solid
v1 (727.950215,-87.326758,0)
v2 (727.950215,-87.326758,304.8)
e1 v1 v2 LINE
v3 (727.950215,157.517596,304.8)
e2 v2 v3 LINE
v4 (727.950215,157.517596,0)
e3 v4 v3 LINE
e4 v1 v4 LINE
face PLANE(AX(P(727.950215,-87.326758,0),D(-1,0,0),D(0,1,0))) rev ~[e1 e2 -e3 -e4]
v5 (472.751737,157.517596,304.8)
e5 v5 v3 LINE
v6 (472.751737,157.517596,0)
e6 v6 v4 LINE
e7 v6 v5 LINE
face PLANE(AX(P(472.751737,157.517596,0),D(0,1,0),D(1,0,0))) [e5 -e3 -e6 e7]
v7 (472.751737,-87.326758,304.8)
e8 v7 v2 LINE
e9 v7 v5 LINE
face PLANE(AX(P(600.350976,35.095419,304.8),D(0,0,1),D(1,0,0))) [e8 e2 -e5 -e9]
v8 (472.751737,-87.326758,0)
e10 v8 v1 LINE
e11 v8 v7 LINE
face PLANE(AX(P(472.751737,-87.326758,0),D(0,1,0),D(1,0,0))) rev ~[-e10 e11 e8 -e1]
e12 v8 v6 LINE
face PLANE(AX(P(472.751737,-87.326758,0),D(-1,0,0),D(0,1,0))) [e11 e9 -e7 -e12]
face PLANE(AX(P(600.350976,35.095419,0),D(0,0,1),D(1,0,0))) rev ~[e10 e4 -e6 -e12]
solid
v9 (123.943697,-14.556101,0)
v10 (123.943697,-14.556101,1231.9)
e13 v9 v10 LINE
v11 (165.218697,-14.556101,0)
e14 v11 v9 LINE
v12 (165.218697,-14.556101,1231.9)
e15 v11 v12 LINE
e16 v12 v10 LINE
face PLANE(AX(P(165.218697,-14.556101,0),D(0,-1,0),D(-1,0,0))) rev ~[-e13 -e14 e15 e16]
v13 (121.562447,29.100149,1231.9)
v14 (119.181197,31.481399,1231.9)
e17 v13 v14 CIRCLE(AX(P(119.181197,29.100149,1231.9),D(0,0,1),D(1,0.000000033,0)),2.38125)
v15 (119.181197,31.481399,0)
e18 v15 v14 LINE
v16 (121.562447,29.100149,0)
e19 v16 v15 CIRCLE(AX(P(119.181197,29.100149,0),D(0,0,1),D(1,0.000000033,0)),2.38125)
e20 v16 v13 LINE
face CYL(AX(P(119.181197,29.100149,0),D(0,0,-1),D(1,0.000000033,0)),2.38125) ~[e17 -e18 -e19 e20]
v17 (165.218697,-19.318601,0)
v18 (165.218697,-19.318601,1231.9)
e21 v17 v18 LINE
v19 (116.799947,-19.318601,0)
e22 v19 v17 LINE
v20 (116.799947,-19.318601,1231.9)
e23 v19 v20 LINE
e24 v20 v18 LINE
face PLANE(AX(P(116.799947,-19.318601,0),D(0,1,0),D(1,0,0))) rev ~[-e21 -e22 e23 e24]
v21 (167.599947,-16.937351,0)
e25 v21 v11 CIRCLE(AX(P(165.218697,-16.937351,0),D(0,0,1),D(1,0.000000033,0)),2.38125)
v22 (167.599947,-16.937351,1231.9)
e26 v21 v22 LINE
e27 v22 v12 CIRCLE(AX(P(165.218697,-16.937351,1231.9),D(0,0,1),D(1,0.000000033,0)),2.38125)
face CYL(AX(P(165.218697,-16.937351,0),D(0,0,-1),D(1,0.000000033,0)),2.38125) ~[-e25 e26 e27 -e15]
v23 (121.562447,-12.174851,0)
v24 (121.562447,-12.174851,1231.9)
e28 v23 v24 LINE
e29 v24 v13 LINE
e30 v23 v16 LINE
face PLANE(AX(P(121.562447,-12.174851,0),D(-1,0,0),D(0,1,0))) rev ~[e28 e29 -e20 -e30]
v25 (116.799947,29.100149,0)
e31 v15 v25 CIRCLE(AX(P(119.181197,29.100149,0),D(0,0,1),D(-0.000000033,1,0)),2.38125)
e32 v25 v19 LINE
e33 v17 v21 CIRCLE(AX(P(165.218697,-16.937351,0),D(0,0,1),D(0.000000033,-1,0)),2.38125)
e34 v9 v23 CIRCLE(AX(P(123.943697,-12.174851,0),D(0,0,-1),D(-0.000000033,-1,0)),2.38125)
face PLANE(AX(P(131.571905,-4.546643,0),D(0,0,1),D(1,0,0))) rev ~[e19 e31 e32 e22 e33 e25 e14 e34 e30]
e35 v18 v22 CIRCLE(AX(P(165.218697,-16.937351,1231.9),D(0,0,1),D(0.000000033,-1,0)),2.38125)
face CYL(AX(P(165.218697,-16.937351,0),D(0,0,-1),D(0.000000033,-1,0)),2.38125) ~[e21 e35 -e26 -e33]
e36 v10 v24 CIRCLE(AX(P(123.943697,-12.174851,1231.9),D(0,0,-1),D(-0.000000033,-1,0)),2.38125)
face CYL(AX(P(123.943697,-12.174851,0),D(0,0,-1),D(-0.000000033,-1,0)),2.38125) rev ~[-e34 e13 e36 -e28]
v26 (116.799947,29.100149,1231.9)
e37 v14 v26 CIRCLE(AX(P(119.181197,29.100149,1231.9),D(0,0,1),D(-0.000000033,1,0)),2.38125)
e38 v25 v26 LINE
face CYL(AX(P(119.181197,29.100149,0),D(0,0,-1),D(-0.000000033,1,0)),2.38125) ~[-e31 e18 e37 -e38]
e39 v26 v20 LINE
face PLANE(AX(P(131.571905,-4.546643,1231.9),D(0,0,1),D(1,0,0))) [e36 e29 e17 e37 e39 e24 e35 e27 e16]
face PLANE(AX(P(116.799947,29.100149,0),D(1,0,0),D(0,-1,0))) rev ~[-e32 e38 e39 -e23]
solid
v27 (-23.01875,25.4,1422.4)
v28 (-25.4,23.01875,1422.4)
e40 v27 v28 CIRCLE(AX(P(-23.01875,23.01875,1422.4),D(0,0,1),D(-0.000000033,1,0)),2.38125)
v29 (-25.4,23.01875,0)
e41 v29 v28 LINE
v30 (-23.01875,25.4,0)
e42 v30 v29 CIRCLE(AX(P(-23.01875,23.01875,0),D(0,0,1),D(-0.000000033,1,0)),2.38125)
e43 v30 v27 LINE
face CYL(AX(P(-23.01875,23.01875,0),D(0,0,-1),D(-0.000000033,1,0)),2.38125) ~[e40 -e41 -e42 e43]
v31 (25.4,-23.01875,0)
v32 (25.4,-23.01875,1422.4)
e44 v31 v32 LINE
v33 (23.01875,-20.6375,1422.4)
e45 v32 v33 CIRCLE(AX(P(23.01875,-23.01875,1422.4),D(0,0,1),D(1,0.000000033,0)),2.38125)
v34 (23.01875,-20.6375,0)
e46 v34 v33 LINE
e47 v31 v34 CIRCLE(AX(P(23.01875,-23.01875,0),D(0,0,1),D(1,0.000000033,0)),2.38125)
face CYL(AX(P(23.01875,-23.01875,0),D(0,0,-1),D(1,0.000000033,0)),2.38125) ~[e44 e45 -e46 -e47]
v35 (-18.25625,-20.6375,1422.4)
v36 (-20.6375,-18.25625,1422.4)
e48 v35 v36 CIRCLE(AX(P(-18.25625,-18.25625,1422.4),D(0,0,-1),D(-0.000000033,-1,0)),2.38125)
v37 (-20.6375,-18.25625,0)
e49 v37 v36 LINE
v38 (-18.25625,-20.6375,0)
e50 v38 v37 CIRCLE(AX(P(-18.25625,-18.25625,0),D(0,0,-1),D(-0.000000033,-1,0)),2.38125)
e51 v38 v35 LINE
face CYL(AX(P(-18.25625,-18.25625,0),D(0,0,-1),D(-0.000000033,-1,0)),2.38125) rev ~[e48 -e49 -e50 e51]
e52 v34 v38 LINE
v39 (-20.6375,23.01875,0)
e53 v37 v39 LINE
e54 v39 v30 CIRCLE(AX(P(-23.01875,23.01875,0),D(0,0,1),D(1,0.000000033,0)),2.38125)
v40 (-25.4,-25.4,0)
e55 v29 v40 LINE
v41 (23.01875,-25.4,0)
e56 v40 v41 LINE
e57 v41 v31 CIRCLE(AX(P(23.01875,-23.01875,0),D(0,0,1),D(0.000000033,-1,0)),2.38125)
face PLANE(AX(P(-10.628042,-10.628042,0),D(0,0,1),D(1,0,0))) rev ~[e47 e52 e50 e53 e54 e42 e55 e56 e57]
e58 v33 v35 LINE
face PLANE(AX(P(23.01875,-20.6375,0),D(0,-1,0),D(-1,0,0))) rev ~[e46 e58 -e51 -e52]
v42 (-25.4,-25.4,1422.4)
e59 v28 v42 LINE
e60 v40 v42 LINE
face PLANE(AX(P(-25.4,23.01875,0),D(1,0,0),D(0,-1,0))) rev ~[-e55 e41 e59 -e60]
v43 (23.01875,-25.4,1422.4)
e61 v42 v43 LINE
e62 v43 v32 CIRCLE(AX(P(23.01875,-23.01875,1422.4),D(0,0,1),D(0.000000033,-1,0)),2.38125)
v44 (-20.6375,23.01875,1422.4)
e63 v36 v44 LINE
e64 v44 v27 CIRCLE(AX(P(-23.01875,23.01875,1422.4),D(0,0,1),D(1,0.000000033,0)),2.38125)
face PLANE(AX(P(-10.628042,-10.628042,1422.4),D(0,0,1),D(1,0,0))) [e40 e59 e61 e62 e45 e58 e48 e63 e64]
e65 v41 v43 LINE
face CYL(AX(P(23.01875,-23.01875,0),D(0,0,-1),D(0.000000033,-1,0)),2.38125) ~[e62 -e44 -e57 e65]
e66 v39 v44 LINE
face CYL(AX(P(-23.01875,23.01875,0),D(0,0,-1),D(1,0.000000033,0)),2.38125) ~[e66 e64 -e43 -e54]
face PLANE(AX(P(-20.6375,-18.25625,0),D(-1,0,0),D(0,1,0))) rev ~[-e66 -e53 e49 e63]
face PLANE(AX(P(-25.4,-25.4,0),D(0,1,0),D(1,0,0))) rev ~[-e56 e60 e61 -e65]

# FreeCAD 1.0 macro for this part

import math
import FreeCAD as App
import Part
import Sketcher

V = App.Vector
Q = App.Units.Quantity


def add_polygon(sketch, points):
    """Adds a closed chain of lines whose ends are joined by coincident constraints."""
    first, n = sketch.GeometryCount, len(points)
    for a, b in zip(points, points[1:] + points[:1]):
        sketch.addGeometry(Part.LineSegment(App.Vector(*a, 0), App.Vector(*b, 0)), False)
    for i in range(n):
        sketch.addConstraint(Sketcher.Constraint("Coincident", first + i, 2, first + (i + 1) % n, 1))

doc = App.newDocument("Part")
body = doc.addObject("PartDesign::Body", "Body")

# Sketch on XY plane
sketch1 = body.newObject("Sketcher::SketchObject", "Sketch")
sketch1.AttachmentSupport = (doc.getObject("XY_Plane"), [""])
sketch1.MapMode = "FlatFace"
sketch1.addGeometry(Part.LineSegment(V(-25.4, 23, 0), V(-25.4, -25.4, 0)), False)
sketch1.addGeometry(Part.LineSegment(V(-25.4, -25.4, 0), V(23, -25.4, 0)), False)
sketch1.addGeometry(Part.ArcOfCircle(Part.Circle(V(23, -23, 0), V(0, 0, 1), 2.4), math.radians(-90), math.radians(0)), False)
sketch1.addGeometry(Part.ArcOfCircle(Part.Circle(V(23, -23, 0), V(0, 0, 1), 2.4), math.radians(0), math.radians(90)), False)
sketch1.addGeometry(Part.LineSegment(V(23, -20.6, 0), V(-18.3, -20.6, 0)), False)
sketch1.addGeometry(Part.ArcOfCircle(Part.Circle(V(-18.3, -18.3, 0), V(0, 0, 1), 2.4), math.radians(-180), math.radians(-90)), False)
sketch1.addGeometry(Part.LineSegment(V(-20.6, -18.3, 0), V(-20.6, 23, 0)), False)
sketch1.addGeometry(Part.ArcOfCircle(Part.Circle(V(-23, 23, 0), V(0, 0, 1), 2.4), math.radians(0), math.radians(90)), False)
sketch1.addGeometry(Part.ArcOfCircle(Part.Circle(V(-23, 23, 0), V(0, 0, 1), 2.4), math.radians(90), math.radians(180)), False)
sketch1.addConstraint(Sketcher.Constraint("Coincident", 0, 2, 1, 1))
sketch1.addConstraint(Sketcher.Constraint("Tangent", 1, 2, 2, 1))
sketch1.addConstraint(Sketcher.Constraint("Tangent", 2, 2, 3, 1))
sketch1.addConstraint(Sketcher.Constraint("Tangent", 3, 2, 4, 1))
sketch1.addConstraint(Sketcher.Constraint("Tangent", 4, 2, 5, 2))
sketch1.addConstraint(Sketcher.Constraint("Tangent", 5, 1, 6, 1))
sketch1.addConstraint(Sketcher.Constraint("Tangent", 6, 2, 7, 1))
sketch1.addConstraint(Sketcher.Constraint("Tangent", 7, 2, 8, 1))
sketch1.addConstraint(Sketcher.Constraint("Tangent", 8, 2, 0, 1))
sketch1.addConstraint(Sketcher.Constraint("Vertical", 0))
sketch1.addConstraint(Sketcher.Constraint("Horizontal", 1))
sketch1.addConstraint(Sketcher.Constraint("Horizontal", 4))
sketch1.addConstraint(Sketcher.Constraint("Vertical", 6))
sketch1.addConstraint(Sketcher.Constraint("Equal", 2, 3))
sketch1.addConstraint(Sketcher.Constraint("Equal", 3, 5))
sketch1.addConstraint(Sketcher.Constraint("Equal", 5, 7))
sketch1.addConstraint(Sketcher.Constraint("Equal", 7, 8))
sketch1.addConstraint(Sketcher.Constraint("Symmetric", 2, 3, 7, 3, -1, 1))
sketch1.addConstraint(Sketcher.Constraint("Horizontal", 3, 3, 2, 2))
sketch1.addConstraint(Sketcher.Constraint("Vertical", 8, 3, 7, 2))
sketch1.addConstraint(Sketcher.Constraint("Equal", 1, 0))
sketch1.addConstraint(Sketcher.Constraint("DistanceX", 0, 2, -1, 1, Q("1 in")))
sketch1.addConstraint(Sketcher.Constraint("Radius", 2, Q("0.09375 in")))
pad1 = body.newObject("PartDesign::Pad", "Pad")
pad1.Profile = sketch1
pad1.Length = Q("56 in")
body2 = doc.addObject("PartDesign::Body", "Body001")

# Sketch on XY plane
sketch2 = body2.newObject("Sketcher::SketchObject", "Sketch001")
sketch2.AttachmentSupport = (doc.getObject("XY_Plane001"), [""])
sketch2.MapMode = "FlatFace"
sketch2.addGeometry(Part.LineSegment(V(116.8, 29.1, 0), V(116.8, -19.3, 0)), False)
sketch2.addGeometry(Part.LineSegment(V(116.8, -19.3, 0), V(165.2, -19.3, 0)), False)
sketch2.addGeometry(Part.ArcOfCircle(Part.Circle(V(165.2, -16.9, 0), V(0, 0, 1), 2.4), math.radians(-90), math.radians(0)), False)
sketch2.addGeometry(Part.ArcOfCircle(Part.Circle(V(165.2, -16.9, 0), V(0, 0, 1), 2.4), math.radians(0), math.radians(90)), False)
sketch2.addGeometry(Part.LineSegment(V(165.2, -14.6, 0), V(123.9, -14.6, 0)), False)
sketch2.addGeometry(Part.ArcOfCircle(Part.Circle(V(123.9, -12.2, 0), V(0, 0, 1), 2.4), math.radians(-180), math.radians(-90)), False)
sketch2.addGeometry(Part.LineSegment(V(121.6, -12.2, 0), V(121.6, 29.1, 0)), False)
sketch2.addGeometry(Part.ArcOfCircle(Part.Circle(V(119.2, 29.1, 0), V(0, 0, 1), 2.4), math.radians(0), math.radians(90)), False)
sketch2.addGeometry(Part.ArcOfCircle(Part.Circle(V(119.2, 29.1, 0), V(0, 0, 1), 2.4), math.radians(90), math.radians(180)), False)
sketch2.addConstraint(Sketcher.Constraint("Coincident", 0, 2, 1, 1))
sketch2.addConstraint(Sketcher.Constraint("Tangent", 1, 2, 2, 1))
sketch2.addConstraint(Sketcher.Constraint("Tangent", 2, 2, 3, 1))
sketch2.addConstraint(Sketcher.Constraint("Tangent", 3, 2, 4, 1))
sketch2.addConstraint(Sketcher.Constraint("Tangent", 4, 2, 5, 2))
sketch2.addConstraint(Sketcher.Constraint("Tangent", 5, 1, 6, 1))
sketch2.addConstraint(Sketcher.Constraint("Tangent", 6, 2, 7, 1))
sketch2.addConstraint(Sketcher.Constraint("Tangent", 7, 2, 8, 1))
sketch2.addConstraint(Sketcher.Constraint("Tangent", 8, 2, 0, 1))
sketch2.addConstraint(Sketcher.Constraint("Vertical", 0))
sketch2.addConstraint(Sketcher.Constraint("Horizontal", 1))
sketch2.addConstraint(Sketcher.Constraint("Horizontal", 4))
sketch2.addConstraint(Sketcher.Constraint("Vertical", 6))
sketch2.addConstraint(Sketcher.Constraint("Equal", 2, 3))
sketch2.addConstraint(Sketcher.Constraint("Equal", 3, 5))
sketch2.addConstraint(Sketcher.Constraint("Equal", 5, 7))
sketch2.addConstraint(Sketcher.Constraint("Equal", 7, 8))
sketch2.addConstraint(Sketcher.Constraint("Horizontal", 3, 3, 2, 2))
sketch2.addConstraint(Sketcher.Constraint("Vertical", 8, 3, 7, 2))
sketch2.addConstraint(Sketcher.Constraint("Equal", 1, 0))
sketch2.addConstraint(Sketcher.Constraint("Radius", 2, Q("0.09375 in")))
sketch2.addConstraint(Sketcher.Constraint("DistanceX", 0, 2, 2, 2, Q("2 in")))
sketch2.addConstraint(Sketcher.Constraint("DistanceY", 0, 2, -1, 1, 19.318601))
sketch2.addConstraint(Sketcher.Constraint("DistanceX", -1, 1, 2, 3, 165.218697))
pad2 = body2.newObject("PartDesign::Pad", "Pad001")
pad2.Profile = sketch2
pad2.Length = Q("48.5 in")
body3 = doc.addObject("PartDesign::Body", "Body002")

# Sketch on XY plane
sketch3 = body3.newObject("Sketcher::SketchObject", "Sketch002")
sketch3.AttachmentSupport = (doc.getObject("XY_Plane002"), [""])
sketch3.MapMode = "FlatFace"
add_polygon(sketch3, [(473, 158), (473, -87), (728, -87), (728, 158)])  # lines 0-3
sketch3.addConstraint(Sketcher.Constraint("Vertical", 0))
sketch3.addConstraint(Sketcher.Constraint("Horizontal", 1))
sketch3.addConstraint(Sketcher.Constraint("Vertical", 2))
sketch3.addConstraint(Sketcher.Constraint("Horizontal", 3))
sketch3.addConstraint(Sketcher.Constraint("DistanceX", 1, 1, 1, 2, 255.198478))
sketch3.addConstraint(Sketcher.Constraint("DistanceY", 0, 2, 0, 1, 244.844355))
sketch3.addConstraint(Sketcher.Constraint("DistanceY", 0, 2, -1, 1, 87.326758))
sketch3.addConstraint(Sketcher.Constraint("DistanceX", -1, 1, 0, 2, 472.751737))
pad3 = body3.newObject("PartDesign::Pad", "Pad002")
pad3.Profile = sketch3
pad3.Length = Q("12 in")

doc.recompute()
